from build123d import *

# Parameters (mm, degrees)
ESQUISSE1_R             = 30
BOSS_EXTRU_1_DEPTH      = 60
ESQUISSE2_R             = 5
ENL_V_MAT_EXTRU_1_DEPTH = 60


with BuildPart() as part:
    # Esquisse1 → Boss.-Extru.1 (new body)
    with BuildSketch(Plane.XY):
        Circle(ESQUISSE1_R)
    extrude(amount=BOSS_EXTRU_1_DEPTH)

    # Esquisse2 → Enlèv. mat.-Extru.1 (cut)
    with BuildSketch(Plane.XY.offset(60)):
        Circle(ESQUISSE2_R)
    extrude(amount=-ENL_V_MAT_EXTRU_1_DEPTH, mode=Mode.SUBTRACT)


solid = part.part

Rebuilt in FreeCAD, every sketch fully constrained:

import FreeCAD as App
import Part
import Sketcher

doc = App.newDocument("Part")
body = doc.addObject("PartDesign::Body", "Body")

# Sketch on XY plane
sketch1 = body.newObject("Sketcher::SketchObject", "Sketch")
sketch1.AttachmentSupport = (doc.getObject("XY_Plane"), [""])
sketch1.MapMode = "FlatFace"
sketch1.addGeometry(Part.Circle(App.Vector(0, 0, 0), App.Vector(0, 0, 1), 30), False)
sketch1.addConstraint([
    Sketcher.Constraint("Coincident", 0, 3, -1, 1),
    Sketcher.Constraint("Diameter", 0, 60.0),
])
pad1 = body.newObject("PartDesign::Pad", "Pad")
pad1.Profile = sketch1
pad1.Length = 60

# Sketch on XY plane
sketch2 = body.newObject("Sketcher::SketchObject", "Sketch001")
sketch2.AttachmentSupport = (doc.getObject("XY_Plane"), [""])
sketch2.MapMode = "FlatFace"
sketch2.AttachmentOffset = App.Placement(App.Vector(0, 0, 60), App.Rotation())
sketch2.addGeometry(Part.Circle(App.Vector(0, 0, 0), App.Vector(0, 0, 1), 5), False)
sketch2.addConstraint([
    Sketcher.Constraint("Coincident", 0, 3, -1, 1),
    Sketcher.Constraint("Diameter", 0, 10.0),
])
pocket1 = body.newObject("PartDesign::Pocket", "Pocket")
pocket1.Profile = sketch2
pocket1.Length = 60

doc.recompute()
